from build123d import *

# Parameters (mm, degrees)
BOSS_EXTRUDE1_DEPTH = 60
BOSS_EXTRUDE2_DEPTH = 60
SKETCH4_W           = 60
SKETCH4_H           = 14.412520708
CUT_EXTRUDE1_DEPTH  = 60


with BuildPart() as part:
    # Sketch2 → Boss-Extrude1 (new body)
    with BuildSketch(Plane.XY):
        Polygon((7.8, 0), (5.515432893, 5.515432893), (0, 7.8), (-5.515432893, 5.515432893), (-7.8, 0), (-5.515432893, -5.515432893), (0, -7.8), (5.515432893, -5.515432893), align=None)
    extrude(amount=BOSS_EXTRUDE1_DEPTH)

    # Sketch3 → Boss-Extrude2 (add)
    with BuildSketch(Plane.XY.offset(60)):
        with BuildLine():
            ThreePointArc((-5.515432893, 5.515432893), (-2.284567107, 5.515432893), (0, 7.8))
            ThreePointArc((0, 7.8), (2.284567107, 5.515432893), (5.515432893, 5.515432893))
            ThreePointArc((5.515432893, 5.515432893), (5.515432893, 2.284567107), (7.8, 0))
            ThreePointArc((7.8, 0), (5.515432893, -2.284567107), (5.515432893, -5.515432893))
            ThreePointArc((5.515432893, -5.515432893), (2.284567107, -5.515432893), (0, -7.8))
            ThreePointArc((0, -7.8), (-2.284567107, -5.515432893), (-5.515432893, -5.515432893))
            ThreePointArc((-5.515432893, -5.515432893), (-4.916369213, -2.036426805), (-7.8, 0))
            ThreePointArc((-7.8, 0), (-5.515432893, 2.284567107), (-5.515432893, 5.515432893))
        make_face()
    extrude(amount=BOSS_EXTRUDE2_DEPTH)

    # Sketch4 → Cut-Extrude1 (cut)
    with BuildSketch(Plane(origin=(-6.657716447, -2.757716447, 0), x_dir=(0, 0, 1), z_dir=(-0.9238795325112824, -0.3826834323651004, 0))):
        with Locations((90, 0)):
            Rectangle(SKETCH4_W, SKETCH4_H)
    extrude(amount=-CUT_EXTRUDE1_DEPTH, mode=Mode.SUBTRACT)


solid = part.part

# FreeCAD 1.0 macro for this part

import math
import FreeCAD as App
import Part
import Sketcher

V = App.Vector
Q = App.Units.Quantity


def add_polygon(sketch, points):
    """Adds a closed chain of lines whose ends are joined by coincident constraints."""
    first, n = sketch.GeometryCount, len(points)
    for a, b in zip(points, points[1:] + points[:1]):
        sketch.addGeometry(Part.LineSegment(App.Vector(*a, 0), App.Vector(*b, 0)), False)
    for i in range(n):
        sketch.addConstraint(Sketcher.Constraint("Coincident", first + i, 2, first + (i + 1) % n, 1))

doc = App.newDocument("Part")
params = doc.addObject("Spreadsheet::Sheet", "Params")
for row, (alias, value) in enumerate([
    ("pad1_length", "60 mm"),
    ("pad2_length", "60 mm"),
    ("sketch3_width", "60 mm"),
    ("pocket1_length", "60 mm"),
], start=1):
    params.set(f"A{row}", alias)
    params.set(f"B{row}", "=" + value)
    params.setAlias(f"B{row}", alias)

body = doc.addObject("PartDesign::Body", "Body")

# Sketch on XY plane
sketch1 = body.newObject("Sketcher::SketchObject", "Sketch")
sketch1.AttachmentSupport = (doc.getObject("XY_Plane"), [""])
sketch1.MapMode = "FlatFace"
add_polygon(sketch1, [(8, 0), (6, 6), (0, 8), (-6, 6), (-8, 0), (-6, -6), (0, -8), (6, -6)])  # lines 0-7
sketch1.addConstraint(Sketcher.Constraint("Symmetric", 0, 2, 4, 2, -1, 1))
sketch1.addConstraint(Sketcher.Constraint("Symmetric", 1, 2, 5, 2, -1, 1))
sketch1.addConstraint(Sketcher.Constraint("Symmetric", 2, 2, 6, 2, -1, 1))
sketch1.addConstraint(Sketcher.Constraint("Symmetric", 3, 2, 7, 2, -1, 1))
sketch1.addConstraint(Sketcher.Constraint("Symmetric", 0, 2, 2, 2, -2))
sketch1.addConstraint(Sketcher.Constraint("PointOnObject", 1, 2, -2))
sketch1.addConstraint(Sketcher.Constraint("PointOnObject", 3, 2, -1))
sketch1.addConstraint(Sketcher.Constraint("Perpendicular", 0, 2))
sketch1.addConstraint(Sketcher.Constraint("Equal", 0, 1))
sketch1.addConstraint(Sketcher.Constraint("Angle", 0, Q("112.5 deg")))
sketch1.addConstraint(Sketcher.Constraint("DistanceY", -1, 1, 1, 2, 7.8))
pad1 = body.newObject("PartDesign::Pad", "Pad")
pad1.Profile = sketch1
pad1.setExpression("Length", "Params.pad1_length")

# Sketch on XY plane
sketch2 = body.newObject("Sketcher::SketchObject", "Sketch001")
sketch2.AttachmentSupport = (doc.getObject("XY_Plane"), [""])
sketch2.MapMode = "FlatFace"
sketch2.AttachmentOffset = App.Placement(V(0, 0, 60), App.Rotation())
sketch2.addGeometry(Part.ArcOfCircle(Part.Circle(V(-3.9, 9.4, 0), V(0, 0, 1), 4.2), math.radians(-112), math.radians(-22)), False)
sketch2.addGeometry(Part.ArcOfCircle(Part.Circle(V(-9.4, 3.9, 0), V(0, 0, 1), 4.2), math.radians(-68), math.radians(22)), False)
sketch2.addGeometry(Part.ArcOfCircle(Part.Circle(V(-8, -3.3, 0), V(0, 0, 1), 3.3), math.radians(-42), math.radians(87)), False)
sketch2.addGeometry(Part.ArcOfCircle(Part.Circle(V(-3.9, -9.4, 0), V(0, 0, 1), 4.2), math.radians(22), math.radians(112)), False)
sketch2.addGeometry(Part.ArcOfCircle(Part.Circle(V(3.9, -9.4, 0), V(0, 0, 1), 4.2), math.radians(68), math.radians(158)), False)
sketch2.addGeometry(Part.ArcOfCircle(Part.Circle(V(9.4, -3.9, 0), V(0, 0, 1), 4.2), math.radians(112), math.radians(202)), False)
sketch2.addGeometry(Part.ArcOfCircle(Part.Circle(V(9.4, 3.9, 0), V(0, 0, 1), 4.2), math.radians(158), math.radians(248)), False)
sketch2.addGeometry(Part.ArcOfCircle(Part.Circle(V(3.9, 9.4, 0), V(0, 0, 1), 4.2), math.radians(-158), math.radians(-68)), False)
sketch2.addConstraint(Sketcher.Constraint("Coincident", 0, 1, 1, 2))
sketch2.addConstraint(Sketcher.Constraint("Coincident", 1, 1, 2, 2))
sketch2.addConstraint(Sketcher.Constraint("Coincident", 2, 1, 3, 2))
sketch2.addConstraint(Sketcher.Constraint("Coincident", 3, 1, 4, 2))
sketch2.addConstraint(Sketcher.Constraint("Coincident", 4, 1, 5, 2))
sketch2.addConstraint(Sketcher.Constraint("Coincident", 5, 1, 6, 2))
sketch2.addConstraint(Sketcher.Constraint("Coincident", 6, 1, 7, 2))
sketch2.addConstraint(Sketcher.Constraint("Coincident", 7, 1, 0, 2))
sketch2.addConstraint(Sketcher.Constraint("Equal", 0, 1))
sketch2.addConstraint(Sketcher.Constraint("Equal", 1, 3))
sketch2.addConstraint(Sketcher.Constraint("Equal", 3, 4))
sketch2.addConstraint(Sketcher.Constraint("Equal", 4, 5))
sketch2.addConstraint(Sketcher.Constraint("Equal", 5, 6))
sketch2.addConstraint(Sketcher.Constraint("Equal", 6, 7))
sketch2.addConstraint(Sketcher.Constraint("Symmetric", 0, 3, 4, 3, -1, 1))
sketch2.addConstraint(Sketcher.Constraint("Symmetric", 1, 3, 5, 3, -1, 1))
sketch2.addConstraint(Sketcher.Constraint("Symmetric", 3, 3, 7, 3, -1, 1))
sketch2.addConstraint(Sketcher.Constraint("Symmetric", 3, 3, 4, 3, -2))
sketch2.addConstraint(Sketcher.Constraint("Symmetric", 1, 3, 6, 3, -2))
sketch2.addConstraint(Sketcher.Constraint("PointOnObject", 1, 1, -1))
sketch2.addConstraint(Sketcher.Constraint("Horizontal", 2, 1, 4, 1))
sketch2.addConstraint(Sketcher.Constraint("DistanceX", 0, 3, -1, 1, 3.9))
sketch2.addConstraint(Sketcher.Constraint("DistanceY", -1, 1, 1, 3, 3.9))
sketch2.addConstraint(Sketcher.Constraint("DistanceX", 1, 1, -1, 1, 7.8))
sketch2.addConstraint(Sketcher.Constraint("DistanceY", 3, 1, -1, 1, 7.8))
sketch2.addConstraint(Sketcher.Constraint("Radius", 0, 4.22133))
sketch2.addConstraint(Sketcher.Constraint("Radius", 2, 3.30598))
pad2 = body.newObject("PartDesign::Pad", "Pad001")
pad2.Profile = sketch2
pad2.setExpression("Length", "Params.pad2_length")

# Sketch on an angled plane
sketch3 = body.newObject("Sketcher::SketchObject", "Sketch002")
sketch3.Placement = App.Placement(V(-6.657716, -2.757716, 0), App.Rotation(V(0, 0, 1), V(-0.382683432, 0.923879533, 0), V(-0.923879533, -0.382683432, 0), "ZXY"))
add_polygon(sketch3, [(60, 7), (60, -7), (120, -7), (120, 7)])  # lines 0-3
sketch3.addConstraint(Sketcher.Constraint("Vertical", 0))
sketch3.addConstraint(Sketcher.Constraint("Horizontal", 1))
sketch3.addConstraint(Sketcher.Constraint("Vertical", 2))
sketch3.addConstraint(Sketcher.Constraint("Horizontal", 3))
sketch3.addConstraint(Sketcher.Constraint("DistanceX", 1, 1, 1, 2, 60.0))
sketch3.addConstraint(Sketcher.Constraint("DistanceX", -1, 1, 0, 2, 60.0))
sketch3.addConstraint(Sketcher.Constraint("DistanceY", 0, 2, 0, 1, 14.412521))
sketch3.addConstraint(Sketcher.Constraint("DistanceY", 0, 2, -1, 1, 7.20626))
sketch3.setExpression("Constraints[8]", "Params.sketch3_width")
pocket1 = body.newObject("PartDesign::Pocket", "Pocket")
pocket1.Profile = sketch3
pocket1.setExpression("Length", "Params.pocket1_length")

doc.recompute()
